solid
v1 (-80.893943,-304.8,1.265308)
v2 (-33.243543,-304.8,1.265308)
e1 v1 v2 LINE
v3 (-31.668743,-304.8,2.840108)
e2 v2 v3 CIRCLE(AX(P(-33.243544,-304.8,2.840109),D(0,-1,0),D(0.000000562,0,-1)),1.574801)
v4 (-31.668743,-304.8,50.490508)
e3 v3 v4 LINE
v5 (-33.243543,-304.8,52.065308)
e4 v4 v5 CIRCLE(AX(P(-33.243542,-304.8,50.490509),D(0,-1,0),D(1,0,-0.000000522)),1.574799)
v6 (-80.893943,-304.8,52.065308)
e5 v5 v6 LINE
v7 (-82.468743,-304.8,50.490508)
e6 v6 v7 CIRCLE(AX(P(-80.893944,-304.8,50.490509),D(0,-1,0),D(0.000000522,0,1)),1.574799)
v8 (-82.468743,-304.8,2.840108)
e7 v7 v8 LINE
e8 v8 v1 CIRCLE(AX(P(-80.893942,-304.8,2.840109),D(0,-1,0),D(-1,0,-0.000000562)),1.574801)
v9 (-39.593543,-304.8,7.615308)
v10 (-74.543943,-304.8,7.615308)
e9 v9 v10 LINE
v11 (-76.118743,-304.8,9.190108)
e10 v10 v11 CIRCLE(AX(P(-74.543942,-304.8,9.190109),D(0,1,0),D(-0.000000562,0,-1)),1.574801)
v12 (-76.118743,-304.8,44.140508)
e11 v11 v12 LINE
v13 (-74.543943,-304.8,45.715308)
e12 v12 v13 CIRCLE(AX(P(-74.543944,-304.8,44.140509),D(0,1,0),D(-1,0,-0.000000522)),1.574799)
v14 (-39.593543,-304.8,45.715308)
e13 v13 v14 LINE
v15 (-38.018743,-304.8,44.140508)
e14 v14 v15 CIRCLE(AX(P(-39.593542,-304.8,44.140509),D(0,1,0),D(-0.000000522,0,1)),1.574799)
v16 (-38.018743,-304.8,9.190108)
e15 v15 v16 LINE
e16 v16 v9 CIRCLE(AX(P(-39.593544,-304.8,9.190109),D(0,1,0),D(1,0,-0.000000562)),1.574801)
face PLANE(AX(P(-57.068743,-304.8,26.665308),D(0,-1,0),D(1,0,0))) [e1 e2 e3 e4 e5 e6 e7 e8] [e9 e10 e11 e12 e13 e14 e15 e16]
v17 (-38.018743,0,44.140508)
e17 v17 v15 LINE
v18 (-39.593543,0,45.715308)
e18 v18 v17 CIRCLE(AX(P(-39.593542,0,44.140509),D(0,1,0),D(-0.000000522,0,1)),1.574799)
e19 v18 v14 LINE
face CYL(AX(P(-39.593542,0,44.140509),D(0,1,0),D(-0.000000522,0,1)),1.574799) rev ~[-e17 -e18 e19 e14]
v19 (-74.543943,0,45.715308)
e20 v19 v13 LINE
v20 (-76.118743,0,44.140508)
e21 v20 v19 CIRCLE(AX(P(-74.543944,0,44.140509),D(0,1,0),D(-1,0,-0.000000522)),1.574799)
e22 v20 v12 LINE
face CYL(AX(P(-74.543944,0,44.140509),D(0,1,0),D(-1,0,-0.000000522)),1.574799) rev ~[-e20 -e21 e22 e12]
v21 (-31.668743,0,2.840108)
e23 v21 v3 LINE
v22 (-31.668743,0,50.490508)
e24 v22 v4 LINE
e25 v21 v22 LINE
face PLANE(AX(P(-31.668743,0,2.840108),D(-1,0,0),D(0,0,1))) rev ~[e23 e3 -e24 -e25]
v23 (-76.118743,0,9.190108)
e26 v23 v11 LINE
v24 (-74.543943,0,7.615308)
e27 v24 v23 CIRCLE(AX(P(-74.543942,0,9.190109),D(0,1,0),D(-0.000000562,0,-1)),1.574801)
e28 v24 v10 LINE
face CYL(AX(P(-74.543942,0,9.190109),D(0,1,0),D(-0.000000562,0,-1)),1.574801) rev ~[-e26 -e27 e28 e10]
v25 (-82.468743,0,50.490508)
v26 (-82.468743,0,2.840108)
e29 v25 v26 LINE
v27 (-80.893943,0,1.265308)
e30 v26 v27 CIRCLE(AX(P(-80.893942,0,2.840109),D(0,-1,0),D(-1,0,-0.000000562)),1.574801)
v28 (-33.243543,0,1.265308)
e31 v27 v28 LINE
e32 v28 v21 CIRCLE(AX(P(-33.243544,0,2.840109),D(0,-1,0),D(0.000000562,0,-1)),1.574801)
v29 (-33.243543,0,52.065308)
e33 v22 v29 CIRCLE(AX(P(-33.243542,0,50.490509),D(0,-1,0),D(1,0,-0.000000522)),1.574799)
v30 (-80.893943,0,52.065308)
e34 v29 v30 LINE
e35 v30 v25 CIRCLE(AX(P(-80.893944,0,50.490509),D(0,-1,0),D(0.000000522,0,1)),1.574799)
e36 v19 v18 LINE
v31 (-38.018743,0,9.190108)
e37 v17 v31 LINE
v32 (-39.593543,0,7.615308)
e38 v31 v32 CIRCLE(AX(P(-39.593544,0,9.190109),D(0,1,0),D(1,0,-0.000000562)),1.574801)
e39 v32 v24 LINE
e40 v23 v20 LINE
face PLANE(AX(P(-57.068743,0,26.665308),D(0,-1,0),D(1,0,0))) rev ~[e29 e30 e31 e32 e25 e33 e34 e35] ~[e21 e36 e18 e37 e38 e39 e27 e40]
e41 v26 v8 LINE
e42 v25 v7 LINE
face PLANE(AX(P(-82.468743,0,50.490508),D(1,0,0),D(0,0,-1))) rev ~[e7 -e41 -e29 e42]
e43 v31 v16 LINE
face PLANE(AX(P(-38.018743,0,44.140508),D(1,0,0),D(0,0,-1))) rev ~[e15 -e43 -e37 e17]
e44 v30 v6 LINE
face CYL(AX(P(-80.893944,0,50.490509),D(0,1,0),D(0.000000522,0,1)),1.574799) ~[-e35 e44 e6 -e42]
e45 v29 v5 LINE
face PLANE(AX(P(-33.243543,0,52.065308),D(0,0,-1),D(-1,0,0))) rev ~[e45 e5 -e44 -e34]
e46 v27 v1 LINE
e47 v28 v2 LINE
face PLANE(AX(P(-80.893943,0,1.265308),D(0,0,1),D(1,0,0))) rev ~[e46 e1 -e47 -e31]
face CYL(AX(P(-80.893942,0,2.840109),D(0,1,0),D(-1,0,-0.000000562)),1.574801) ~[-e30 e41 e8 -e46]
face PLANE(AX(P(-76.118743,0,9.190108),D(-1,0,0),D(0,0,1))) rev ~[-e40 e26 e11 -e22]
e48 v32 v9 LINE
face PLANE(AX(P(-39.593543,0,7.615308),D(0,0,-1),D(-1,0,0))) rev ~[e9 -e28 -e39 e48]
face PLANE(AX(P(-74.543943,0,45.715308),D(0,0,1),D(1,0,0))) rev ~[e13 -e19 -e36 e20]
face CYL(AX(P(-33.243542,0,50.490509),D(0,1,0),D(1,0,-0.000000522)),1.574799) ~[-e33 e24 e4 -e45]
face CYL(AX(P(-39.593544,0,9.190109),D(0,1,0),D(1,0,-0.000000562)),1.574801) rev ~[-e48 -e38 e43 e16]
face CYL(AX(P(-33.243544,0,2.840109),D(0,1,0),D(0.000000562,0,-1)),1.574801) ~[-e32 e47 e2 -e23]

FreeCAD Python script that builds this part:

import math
import FreeCAD as App
import Part
import Sketcher
Q = App.Units.Quantity

doc = App.newDocument("Part")
body = doc.addObject("PartDesign::Body", "Body")

sketch1 = doc.addObject("Sketcher::SketchObject", "Sketch")
body.addObject(sketch1)
sketch1.AttachmentSupport = (doc.XZ_Plane, [""])
sketch1.MapMode = "FlatFace"
sketch1.addGeometry([
    Part.LineSegment(App.Vector(-80.9, 1.3, 0), App.Vector(-33.2, 1.3, 0)),
    Part.ArcOfCircle(Part.Circle(App.Vector(-33.2, 2.8, 0), App.Vector(0, 0, 1), 1.6), math.radians(-90), math.radians(0)),
    Part.LineSegment(App.Vector(-31.7, 2.8, 0), App.Vector(-31.7, 50.5, 0)),
    Part.ArcOfCircle(Part.Circle(App.Vector(-33.2, 50.5, 0), App.Vector(0, 0, 1), 1.6), math.radians(0), math.radians(90)),
    Part.LineSegment(App.Vector(-33.2, 52.1, 0), App.Vector(-80.9, 52.1, 0)),
    Part.ArcOfCircle(Part.Circle(App.Vector(-80.9, 50.5, 0), App.Vector(0, 0, 1), 1.6), math.radians(90), math.radians(180)),
    Part.LineSegment(App.Vector(-82.5, 50.5, 0), App.Vector(-82.5, 2.8, 0)),
    Part.ArcOfCircle(Part.Circle(App.Vector(-80.9, 2.8, 0), App.Vector(0, 0, 1), 1.6), math.radians(-180), math.radians(-90)),
    Part.ArcOfCircle(Part.Circle(App.Vector(-39.6, 9.2, 0), App.Vector(0, 0, 1), 1.6), math.radians(-90), math.radians(0)),
    Part.LineSegment(App.Vector(-39.6, 7.6, 0), App.Vector(-74.5, 7.6, 0)),
    Part.ArcOfCircle(Part.Circle(App.Vector(-74.5, 9.2, 0), App.Vector(0, 0, 1), 1.6), math.radians(-180), math.radians(-90)),
    Part.LineSegment(App.Vector(-76.1, 9.2, 0), App.Vector(-76.1, 44.1, 0)),
    Part.ArcOfCircle(Part.Circle(App.Vector(-74.5, 44.1, 0), App.Vector(0, 0, 1), 1.6), math.radians(90), math.radians(180)),
    Part.LineSegment(App.Vector(-74.5, 45.7, 0), App.Vector(-39.6, 45.7, 0)),
    Part.ArcOfCircle(Part.Circle(App.Vector(-39.6, 44.1, 0), App.Vector(0, 0, 1), 1.6), math.radians(0), math.radians(90)),
    Part.LineSegment(App.Vector(-38, 44.1, 0), App.Vector(-38, 9.2, 0)),
], False)
sketch1.addConstraint([
    Sketcher.Constraint("Tangent", 0, 2, 1, 1),
    Sketcher.Constraint("Tangent", 1, 2, 2, 1),
    Sketcher.Constraint("Tangent", 2, 2, 3, 1),
    Sketcher.Constraint("Tangent", 3, 2, 4, 1),
    Sketcher.Constraint("Tangent", 4, 2, 5, 1),
    Sketcher.Constraint("Tangent", 5, 2, 6, 1),
    Sketcher.Constraint("Tangent", 6, 2, 7, 1),
    Sketcher.Constraint("Tangent", 7, 2, 0, 1),
    Sketcher.Constraint("Tangent", 8, 1, 9, 1),
    Sketcher.Constraint("Tangent", 9, 2, 10, 2),
    Sketcher.Constraint("Tangent", 10, 1, 11, 1),
    Sketcher.Constraint("Tangent", 11, 2, 12, 2),
    Sketcher.Constraint("Tangent", 12, 1, 13, 1),
    Sketcher.Constraint("Tangent", 13, 2, 14, 2),
    Sketcher.Constraint("Tangent", 14, 1, 15, 1),
    Sketcher.Constraint("Tangent", 15, 2, 8, 2),
    Sketcher.Constraint("Horizontal", 0),
    Sketcher.Constraint("Vertical", 2),
    Sketcher.Constraint("Horizontal", 4),
    Sketcher.Constraint("Vertical", 6),
    Sketcher.Constraint("Horizontal", 9),
    Sketcher.Constraint("Vertical", 11),
    Sketcher.Constraint("Horizontal", 13),
    Sketcher.Constraint("Vertical", 15),
    Sketcher.Constraint("Equal", 1, 3),
    Sketcher.Constraint("Equal", 3, 5),
    Sketcher.Constraint("Equal", 5, 7),
    Sketcher.Constraint("Equal", 7, 8),
    Sketcher.Constraint("Equal", 8, 10),
    Sketcher.Constraint("Equal", 10, 12),
    Sketcher.Constraint("Equal", 12, 14),
    Sketcher.Constraint("Equal", 4, 2),
    Sketcher.Constraint("Equal", 13, 11),
    Sketcher.Constraint("Radius", 1, Q("0.062 in")),
    Sketcher.Constraint("DistanceX", 0, 1, 0, 2, Q("1.876 in")),
    Sketcher.Constraint("DistanceX", 9, 2, 9, 1, Q("1.376 in")),
    Sketcher.Constraint("DistanceX", 8, 3, 1, 3, Q("0.25 in")),
    Sketcher.Constraint("DistanceY", 1, 3, 8, 3, Q("0.25 in")),
    Sketcher.Constraint("DistanceY", -1, 1, 1, 3, 2.840109),
    Sketcher.Constraint("DistanceX", 1, 3, -1, 1, 33.243544),
])
pad1 = doc.addObject("PartDesign::Pad", "Pad")
body.addObject(pad1)
pad1.Profile = sketch1
pad1.Length = Q("12 in")

doc.recompute()
